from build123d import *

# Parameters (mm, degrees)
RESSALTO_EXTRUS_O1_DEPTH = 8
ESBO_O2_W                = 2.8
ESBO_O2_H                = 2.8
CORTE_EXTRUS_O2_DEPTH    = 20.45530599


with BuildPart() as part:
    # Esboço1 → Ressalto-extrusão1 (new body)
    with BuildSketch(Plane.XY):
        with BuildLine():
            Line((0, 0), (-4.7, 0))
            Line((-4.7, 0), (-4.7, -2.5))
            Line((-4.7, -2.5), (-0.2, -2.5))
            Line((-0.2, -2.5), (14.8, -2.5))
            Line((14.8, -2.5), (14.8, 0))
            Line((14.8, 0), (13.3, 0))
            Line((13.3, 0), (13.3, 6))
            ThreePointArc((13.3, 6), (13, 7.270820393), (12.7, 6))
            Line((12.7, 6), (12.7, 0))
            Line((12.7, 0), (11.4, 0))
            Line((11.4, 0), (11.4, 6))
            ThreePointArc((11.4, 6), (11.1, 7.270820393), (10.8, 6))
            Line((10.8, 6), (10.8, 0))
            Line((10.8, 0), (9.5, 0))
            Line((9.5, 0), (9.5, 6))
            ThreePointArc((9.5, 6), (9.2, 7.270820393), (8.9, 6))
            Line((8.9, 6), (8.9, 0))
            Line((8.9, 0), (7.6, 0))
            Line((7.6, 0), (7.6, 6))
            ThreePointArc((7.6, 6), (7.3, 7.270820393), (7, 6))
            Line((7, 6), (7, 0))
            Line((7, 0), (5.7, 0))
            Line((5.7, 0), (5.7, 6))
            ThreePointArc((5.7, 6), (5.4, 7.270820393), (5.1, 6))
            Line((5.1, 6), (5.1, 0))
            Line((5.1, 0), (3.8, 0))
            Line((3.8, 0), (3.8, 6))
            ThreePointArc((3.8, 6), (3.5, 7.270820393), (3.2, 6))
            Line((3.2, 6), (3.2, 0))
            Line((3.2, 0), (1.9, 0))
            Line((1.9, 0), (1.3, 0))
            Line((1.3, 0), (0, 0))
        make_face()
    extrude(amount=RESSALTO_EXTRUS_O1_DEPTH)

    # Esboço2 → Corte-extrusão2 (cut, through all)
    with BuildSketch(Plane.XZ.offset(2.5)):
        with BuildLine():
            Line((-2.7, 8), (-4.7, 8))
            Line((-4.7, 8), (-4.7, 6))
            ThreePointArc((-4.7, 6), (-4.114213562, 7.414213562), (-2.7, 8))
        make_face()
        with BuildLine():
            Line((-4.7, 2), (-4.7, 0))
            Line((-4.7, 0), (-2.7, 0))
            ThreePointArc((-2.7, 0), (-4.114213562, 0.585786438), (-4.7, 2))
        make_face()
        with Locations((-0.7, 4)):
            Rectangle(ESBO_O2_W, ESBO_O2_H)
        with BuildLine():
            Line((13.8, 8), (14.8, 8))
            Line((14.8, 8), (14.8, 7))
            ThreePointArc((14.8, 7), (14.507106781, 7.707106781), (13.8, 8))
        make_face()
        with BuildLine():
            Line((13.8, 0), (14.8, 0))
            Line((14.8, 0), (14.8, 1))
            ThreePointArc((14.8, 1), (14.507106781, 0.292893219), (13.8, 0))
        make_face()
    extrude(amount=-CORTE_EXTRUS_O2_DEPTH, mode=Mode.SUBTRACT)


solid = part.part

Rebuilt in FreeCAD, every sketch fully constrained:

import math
import FreeCAD as App
import Part
import Sketcher

V = App.Vector
Q = App.Units.Quantity


def add_polygon(sketch, points):
    """Adds a closed chain of lines whose ends are joined by coincident constraints."""
    first, n = sketch.GeometryCount, len(points)
    for a, b in zip(points, points[1:] + points[:1]):
        sketch.addGeometry(Part.LineSegment(App.Vector(*a, 0), App.Vector(*b, 0)), False)
    for i in range(n):
        sketch.addConstraint(Sketcher.Constraint("Coincident", first + i, 2, first + (i + 1) % n, 1))

doc = App.newDocument("Part")
params = doc.addObject("Spreadsheet::Sheet", "Params")
for row, (alias, value) in enumerate([
    ("sketch1_height", "6 mm"),
    ("sketch1_width", "19.5 mm"),
    ("sketch1_width2", "1.5 mm"),
    ("sketch1_width3", "1.3 mm"),
    ("sketch1_width4", "7.9 mm"),
    ("pad1_length", "8 mm"),
    ("sketch2_radius", "2 mm"),
    ("sketch2_radius2", "1 mm"),
    ("sketch2_width", "2.8 mm"),
], start=1):
    params.set(f"A{row}", alias)
    params.set(f"B{row}", "=" + value)
    params.setAlias(f"B{row}", alias)

body = doc.addObject("PartDesign::Body", "Body")

# Sketch on XY plane
sketch1 = body.newObject("Sketcher::SketchObject", "Sketch")
sketch1.AttachmentSupport = (doc.getObject("XY_Plane"), [""])
sketch1.MapMode = "FlatFace"
sketch1.addGeometry(Part.LineSegment(V(-4.7, 0, 0), V(-4.7, -2.5, 0)), False)
sketch1.addGeometry(Part.LineSegment(V(-4.7, -2.5, 0), V(14.8, -2.5, 0)), False)
sketch1.addGeometry(Part.LineSegment(V(14.8, -2.5, 0), V(14.8, 0, 0)), False)
sketch1.addGeometry(Part.LineSegment(V(14.8, 0, 0), V(13.3, 0, 0)), False)
sketch1.addGeometry(Part.LineSegment(V(13.3, 0, 0), V(13.3, 6, 0)), False)
sketch1.addGeometry(Part.ArcOfCircle(Part.Circle(V(13, 6.6, 0), V(0, 0, 1), 0.67082), math.radians(-63.434949), math.radians(243.434949)), False)
sketch1.addGeometry(Part.LineSegment(V(12.7, 6, 0), V(12.7, 0, 0)), False)
sketch1.addGeometry(Part.LineSegment(V(12.7, 0, 0), V(11.4, 0, 0)), False)
sketch1.addGeometry(Part.LineSegment(V(11.4, 0, 0), V(11.4, 6, 0)), False)
sketch1.addGeometry(Part.ArcOfCircle(Part.Circle(V(11.1, 6.6, 0), V(0, 0, 1), 0.67082), math.radians(-63.434949), math.radians(243.434949)), False)
sketch1.addGeometry(Part.LineSegment(V(10.8, 6, 0), V(10.8, 0, 0)), False)
sketch1.addGeometry(Part.LineSegment(V(10.8, 0, 0), V(9.5, 0, 0)), False)
sketch1.addGeometry(Part.LineSegment(V(9.5, 0, 0), V(9.5, 6, 0)), False)
sketch1.addGeometry(Part.ArcOfCircle(Part.Circle(V(9.2, 6.6, 0), V(0, 0, 1), 0.67082), math.radians(-63.434949), math.radians(243.434949)), False)
sketch1.addGeometry(Part.LineSegment(V(8.9, 6, 0), V(8.9, 0, 0)), False)
sketch1.addGeometry(Part.LineSegment(V(8.9, 0, 0), V(7.6, 0, 0)), False)
sketch1.addGeometry(Part.LineSegment(V(7.6, 0, 0), V(7.6, 6, 0)), False)
sketch1.addGeometry(Part.ArcOfCircle(Part.Circle(V(7.3, 6.6, 0), V(0, 0, 1), 0.67082), math.radians(-63.434949), math.radians(243.434949)), False)
sketch1.addGeometry(Part.LineSegment(V(7, 6, 0), V(7, 0, 0)), False)
sketch1.addGeometry(Part.LineSegment(V(7, 0, 0), V(5.7, 0, 0)), False)
sketch1.addGeometry(Part.LineSegment(V(5.7, 0, 0), V(5.7, 6, 0)), False)
sketch1.addGeometry(Part.ArcOfCircle(Part.Circle(V(5.4, 6.6, 0), V(0, 0, 1), 0.67082), math.radians(-63.434949), math.radians(243.434949)), False)
sketch1.addGeometry(Part.LineSegment(V(5.1, 6, 0), V(5.1, 0, 0)), False)
sketch1.addGeometry(Part.LineSegment(V(5.1, 0, 0), V(3.8, 0, 0)), False)
sketch1.addGeometry(Part.LineSegment(V(3.8, 0, 0), V(3.8, 6, 0)), False)
sketch1.addGeometry(Part.ArcOfCircle(Part.Circle(V(3.5, 6.6, 0), V(0, 0, 1), 0.67082), math.radians(-63.434949), math.radians(243.434949)), False)
sketch1.addGeometry(Part.LineSegment(V(3.2, 6, 0), V(3.2, 0, 0)), False)
sketch1.addGeometry(Part.LineSegment(V(3.2, 0, 0), V(-4.7, 0, 0)), False)
sketch1.addConstraint(Sketcher.Constraint("Coincident", 0, 2, 1, 1))
sketch1.addConstraint(Sketcher.Constraint("Coincident", 1, 2, 2, 1))
sketch1.addConstraint(Sketcher.Constraint("Coincident", 2, 2, 3, 1))
sketch1.addConstraint(Sketcher.Constraint("Coincident", 3, 2, 4, 1))
sketch1.addConstraint(Sketcher.Constraint("Coincident", 4, 2, 5, 1))
sketch1.addConstraint(Sketcher.Constraint("Coincident", 5, 2, 6, 1))
sketch1.addConstraint(Sketcher.Constraint("Coincident", 6, 2, 7, 1))
sketch1.addConstraint(Sketcher.Constraint("Coincident", 7, 2, 8, 1))
sketch1.addConstraint(Sketcher.Constraint("Coincident", 8, 2, 9, 1))
sketch1.addConstraint(Sketcher.Constraint("Coincident", 9, 2, 10, 1))
sketch1.addConstraint(Sketcher.Constraint("Coincident", 10, 2, 11, 1))
sketch1.addConstraint(Sketcher.Constraint("Coincident", 11, 2, 12, 1))
sketch1.addConstraint(Sketcher.Constraint("Coincident", 12, 2, 13, 1))
sketch1.addConstraint(Sketcher.Constraint("Coincident", 13, 2, 14, 1))
sketch1.addConstraint(Sketcher.Constraint("Coincident", 14, 2, 15, 1))
sketch1.addConstraint(Sketcher.Constraint("Coincident", 15, 2, 16, 1))
sketch1.addConstraint(Sketcher.Constraint("Coincident", 16, 2, 17, 1))
sketch1.addConstraint(Sketcher.Constraint("Coincident", 17, 2, 18, 1))
sketch1.addConstraint(Sketcher.Constraint("Coincident", 18, 2, 19, 1))
sketch1.addConstraint(Sketcher.Constraint("Coincident", 19, 2, 20, 1))
sketch1.addConstraint(Sketcher.Constraint("Coincident", 20, 2, 21, 1))
sketch1.addConstraint(Sketcher.Constraint("Coincident", 21, 2, 22, 1))
sketch1.addConstraint(Sketcher.Constraint("Coincident", 22, 2, 23, 1))
sketch1.addConstraint(Sketcher.Constraint("Coincident", 23, 2, 24, 1))
sketch1.addConstraint(Sketcher.Constraint("Coincident", 24, 2, 25, 1))
sketch1.addConstraint(Sketcher.Constraint("Coincident", 25, 2, 26, 1))
sketch1.addConstraint(Sketcher.Constraint("Coincident", 26, 2, 27, 1))
sketch1.addConstraint(Sketcher.Constraint("Coincident", 27, 2, 0, 1))
sketch1.addConstraint(Sketcher.Constraint("Vertical", 0))
sketch1.addConstraint(Sketcher.Constraint("Horizontal", 1))
sketch1.addConstraint(Sketcher.Constraint("Vertical", 2))
sketch1.addConstraint(Sketcher.Constraint("Horizontal", 3))
sketch1.addConstraint(Sketcher.Constraint("Vertical", 4))
sketch1.addConstraint(Sketcher.Constraint("Vertical", 6))
sketch1.addConstraint(Sketcher.Constraint("Horizontal", 7))
sketch1.addConstraint(Sketcher.Constraint("Vertical", 8))
sketch1.addConstraint(Sketcher.Constraint("Vertical", 10))
sketch1.addConstraint(Sketcher.Constraint("Horizontal", 11))
sketch1.addConstraint(Sketcher.Constraint("Vertical", 12))
sketch1.addConstraint(Sketcher.Constraint("Vertical", 14))
sketch1.addConstraint(Sketcher.Constraint("Horizontal", 15))
sketch1.addConstraint(Sketcher.Constraint("Vertical", 16))
sketch1.addConstraint(Sketcher.Constraint("Vertical", 18))
sketch1.addConstraint(Sketcher.Constraint("Horizontal", 19))
sketch1.addConstraint(Sketcher.Constraint("Vertical", 20))
sketch1.addConstraint(Sketcher.Constraint("Vertical", 22))
sketch1.addConstraint(Sketcher.Constraint("Horizontal", 23))
sketch1.addConstraint(Sketcher.Constraint("Vertical", 24))
sketch1.addConstraint(Sketcher.Constraint("Vertical", 26))
sketch1.addConstraint(Sketcher.Constraint("Horizontal", 27))
sketch1.addConstraint(Sketcher.Constraint("Equal", 5, 9))
sketch1.addConstraint(Sketcher.Constraint("Equal", 9, 13))
sketch1.addConstraint(Sketcher.Constraint("Equal", 13, 17))
sketch1.addConstraint(Sketcher.Constraint("Equal", 17, 21))
sketch1.addConstraint(Sketcher.Constraint("Equal", 21, 25))
sketch1.addConstraint(Sketcher.Constraint("PointOnObject", 2, 2, -1))
sketch1.addConstraint(Sketcher.Constraint("PointOnObject", 6, 2, -1))
sketch1.addConstraint(Sketcher.Constraint("PointOnObject", 10, 2, -1))
sketch1.addConstraint(Sketcher.Constraint("PointOnObject", 14, 2, -1))
sketch1.addConstraint(Sketcher.Constraint("PointOnObject", 18, 2, -1))
sketch1.addConstraint(Sketcher.Constraint("PointOnObject", 22, 2, -1))
sketch1.addConstraint(Sketcher.Constraint("PointOnObject", 26, 2, -1))
sketch1.addConstraint(Sketcher.Constraint("Horizontal", 5, 3, 9, 3))
sketch1.addConstraint(Sketcher.Constraint("Horizontal", 9, 3, 13, 3))
sketch1.addConstraint(Sketcher.Constraint("Horizontal", 13, 3, 17, 3))
sketch1.addConstraint(Sketcher.Constraint("Horizontal", 17, 3, 21, 3))
sketch1.addConstraint(Sketcher.Constraint("Horizontal", 21, 3, 25, 3))
sketch1.addConstraint(Sketcher.Constraint("Horizontal", 4, 2, 5, 2))
sketch1.addConstraint(Sketcher.Constraint("Horizontal", 5, 2, 8, 2))
sketch1.addConstraint(Sketcher.Constraint("Horizontal", 8, 2, 9, 2))
sketch1.addConstraint(Sketcher.Constraint("Horizontal", 9, 2, 12, 2))
sketch1.addConstraint(Sketcher.Constraint("Horizontal", 12, 2, 13, 2))
sketch1.addConstraint(Sketcher.Constraint("Horizontal", 13, 2, 16, 2))
sketch1.addConstraint(Sketcher.Constraint("Horizontal", 16, 2, 17, 2))
sketch1.addConstraint(Sketcher.Constraint("Horizontal", 17, 2, 20, 2))
sketch1.addConstraint(Sketcher.Constraint("Horizontal", 20, 2, 21, 2))
sketch1.addConstraint(Sketcher.Constraint("Horizontal", 21, 2, 24, 2))
sketch1.addConstraint(Sketcher.Constraint("Horizontal", 24, 2, 25, 2))
sketch1.addConstraint(Sketcher.Constraint("Equal", 7, 11))
sketch1.addConstraint(Sketcher.Constraint("Equal", 11, 15))
sketch1.addConstraint(Sketcher.Constraint("Equal", 15, 19))
sketch1.addConstraint(Sketcher.Constraint("Equal", 19, 23))
sketch1.addConstraint(Sketcher.Constraint("DistanceY", 4, 1, 4, 2, Q("6 mm")))
sketch1.addConstraint(Sketcher.Constraint("DistanceX", 1, 1, 1, 2, Q("19.5 mm")))
sketch1.addConstraint(Sketcher.Constraint("DistanceX", 3, 2, 3, 1, Q("1.5 mm")))
sketch1.addConstraint(Sketcher.Constraint("DistanceX", 7, 2, 7, 1, Q("1.3 mm")))
sketch1.addConstraint(Sketcher.Constraint("DistanceX", 27, 2, 27, 1, Q("7.9 mm")))
sketch1.addConstraint(Sketcher.Constraint("DistanceY", 0, 2, 0, 1, Q("2.5 mm")))
sketch1.addConstraint(Sketcher.Constraint("DistanceX", -1, 1, 5, 3, Q("13 mm")))
sketch1.addConstraint(Sketcher.Constraint("DistanceY", -1, 1, 5, 3, Q("6.6 mm")))
sketch1.setExpression("Constraints[82]", "Params.sketch1_height")
sketch1.setExpression("Constraints[83]", "Params.sketch1_width")
sketch1.setExpression("Constraints[84]", "Params.sketch1_width2")
sketch1.setExpression("Constraints[85]", "Params.sketch1_width3")
sketch1.setExpression("Constraints[86]", "Params.sketch1_width4")
pad1 = body.newObject("PartDesign::Pad", "Pad")
pad1.Profile = sketch1
pad1.setExpression("Length", "Params.pad1_length")

# Sketch on XZ plane
sketch2 = body.newObject("Sketcher::SketchObject", "Sketch001")
sketch2.AttachmentSupport = (doc.getObject("XZ_Plane"), [""])
sketch2.MapMode = "FlatFace"
sketch2.AttachmentOffset = App.Placement(V(0, 0, 2.5), App.Rotation())
sketch2.addGeometry(Part.LineSegment(V(-2.7, 8, 0), V(-4.7, 8, 0)), False)  # 0
sketch2.addGeometry(Part.LineSegment(V(-4.7, 8, 0), V(-4.7, 6, 0)), False)  # 1
sketch2.addGeometry(Part.ArcOfCircle(Part.Circle(V(-2.7, 6, 0), V(0, 0, 1), 2), math.radians(90), math.radians(180)), False)  # 2
sketch2.addGeometry(Part.LineSegment(V(-4.7, 2, 0), V(-4.7, 0, 0)), False)  # 3
sketch2.addGeometry(Part.LineSegment(V(-4.7, 0, 0), V(-2.7, 0, 0)), False)  # 4
sketch2.addGeometry(Part.ArcOfCircle(Part.Circle(V(-2.7, 2, 0), V(0, 0, 1), 2), math.radians(-180), math.radians(-90)), False)  # 5
add_polygon(sketch2, [(-2.1, 5.4), (-2.1, 2.6), (0.7, 2.6), (0.7, 5.4)])  # lines 6-9
sketch2.addGeometry(Part.LineSegment(V(14.8, 8, 0), V(13.8, 8, 0)), False)  # 10
sketch2.addGeometry(Part.ArcOfCircle(Part.Circle(V(13.8, 7, 0), V(0, 0, 1), 1), math.radians(0), math.radians(90)), False)  # 11
sketch2.addGeometry(Part.LineSegment(V(14.8, 7, 0), V(14.8, 8, 0)), False)  # 12
sketch2.addGeometry(Part.LineSegment(V(13.8, 0, 0), V(14.8, 0, 0)), False)  # 13
sketch2.addGeometry(Part.LineSegment(V(14.8, 0, 0), V(14.8, 1, 0)), False)  # 14
sketch2.addGeometry(Part.ArcOfCircle(Part.Circle(V(13.8, 1, 0), V(0, 0, 1), 1), math.radians(-90), math.radians(0)), False)  # 15
sketch2.addConstraint(Sketcher.Constraint("Coincident", 0, 2, 1, 1))
sketch2.addConstraint(Sketcher.Constraint("Tangent", 1, 2, 2, 2))
sketch2.addConstraint(Sketcher.Constraint("Tangent", 2, 1, 0, 1))
sketch2.addConstraint(Sketcher.Constraint("Coincident", 3, 2, 4, 1))
sketch2.addConstraint(Sketcher.Constraint("Tangent", 4, 2, 5, 2))
sketch2.addConstraint(Sketcher.Constraint("Tangent", 5, 1, 3, 1))
sketch2.addConstraint(Sketcher.Constraint("Tangent", 10, 2, 11, 2))
sketch2.addConstraint(Sketcher.Constraint("Tangent", 11, 1, 12, 1))
sketch2.addConstraint(Sketcher.Constraint("Coincident", 12, 2, 10, 1))
sketch2.addConstraint(Sketcher.Constraint("Coincident", 13, 2, 14, 1))
sketch2.addConstraint(Sketcher.Constraint("Tangent", 14, 2, 15, 2))
sketch2.addConstraint(Sketcher.Constraint("Tangent", 15, 1, 13, 1))
sketch2.addConstraint(Sketcher.Constraint("Horizontal", 0))
sketch2.addConstraint(Sketcher.Constraint("Vertical", 1))
sketch2.addConstraint(Sketcher.Constraint("Vertical", 3))
sketch2.addConstraint(Sketcher.Constraint("Horizontal", 4))
sketch2.addConstraint(Sketcher.Constraint("Vertical", 6))
sketch2.addConstraint(Sketcher.Constraint("Horizontal", 7))
sketch2.addConstraint(Sketcher.Constraint("Vertical", 8))
sketch2.addConstraint(Sketcher.Constraint("Horizontal", 9))
sketch2.addConstraint(Sketcher.Constraint("Horizontal", 10))
sketch2.addConstraint(Sketcher.Constraint("Vertical", 12))
sketch2.addConstraint(Sketcher.Constraint("Horizontal", 13))
sketch2.addConstraint(Sketcher.Constraint("Vertical", 14))
sketch2.addConstraint(Sketcher.Constraint("Equal", 2, 5))
sketch2.addConstraint(Sketcher.Constraint("Equal", 11, 15))
sketch2.addConstraint(Sketcher.Constraint("PointOnObject", 3, 2, -1))
sketch2.addConstraint(Sketcher.Constraint("PointOnObject", 13, 2, -1))
sketch2.addConstraint(Sketcher.Constraint("Horizontal", 2, 1, 10, 2))
sketch2.addConstraint(Sketcher.Constraint("Vertical", 2, 3, 5, 3))
sketch2.addConstraint(Sketcher.Constraint("Vertical", 11, 3, 15, 3))
sketch2.addConstraint(Sketcher.Constraint("Equal", 9, 6))
sketch2.addConstraint(Sketcher.Constraint("Radius", 2, Q("2 mm")))
sketch2.addConstraint(Sketcher.Constraint("Radius", 11, Q("1 mm")))
sketch2.addConstraint(Sketcher.Constraint("DistanceX", 7, 1, 7, 2, Q("2.8 mm")))
sketch2.addConstraint(Sketcher.Constraint("DistanceY", -1, 1, 2, 3, Q("6 mm")))
sketch2.addConstraint(Sketcher.Constraint("DistanceX", 2, 3, -1, 1, Q("2.7 mm")))
sketch2.addConstraint(Sketcher.Constraint("DistanceX", -1, 1, 11, 3, Q("13.8 mm")))
sketch2.addConstraint(Sketcher.Constraint("DistanceX", 6, 2, -1, 1, Q("2.1 mm")))
sketch2.addConstraint(Sketcher.Constraint("DistanceY", -1, 1, 6, 2, Q("2.6 mm")))
sketch2.setExpression("Constraints[36]", "Params.sketch2_radius")
sketch2.setExpression("Constraints[37]", "Params.sketch2_radius2")
sketch2.setExpression("Constraints[38]", "Params.sketch2_width")
pocket1 = body.newObject("PartDesign::Pocket", "Pocket")
pocket1.Profile = sketch2
pocket1.Type = "ThroughAll"

doc.recompute()
